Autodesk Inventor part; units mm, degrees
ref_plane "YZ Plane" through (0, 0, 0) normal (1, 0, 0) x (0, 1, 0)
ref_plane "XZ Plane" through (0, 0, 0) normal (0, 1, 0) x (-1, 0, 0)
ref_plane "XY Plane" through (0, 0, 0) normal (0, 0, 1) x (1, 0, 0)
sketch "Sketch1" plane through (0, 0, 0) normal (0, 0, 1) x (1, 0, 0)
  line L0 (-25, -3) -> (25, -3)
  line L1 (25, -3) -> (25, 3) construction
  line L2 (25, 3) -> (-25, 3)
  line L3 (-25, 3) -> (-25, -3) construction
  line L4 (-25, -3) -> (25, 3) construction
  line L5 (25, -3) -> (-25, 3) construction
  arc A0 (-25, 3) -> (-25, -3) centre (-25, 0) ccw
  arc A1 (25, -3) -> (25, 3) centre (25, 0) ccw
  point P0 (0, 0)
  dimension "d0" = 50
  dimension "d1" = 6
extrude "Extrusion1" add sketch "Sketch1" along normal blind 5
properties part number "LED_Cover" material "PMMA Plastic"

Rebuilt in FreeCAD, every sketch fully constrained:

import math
import FreeCAD as App
import Part
import Sketcher
from FreeCAD import Vector

doc = App.newDocument("Part")
body = doc.addObject("PartDesign::Body", "Body")

sketch1 = body.newObject("Sketcher::SketchObject", "Sketch")
sketch1.AttachmentSupport = (doc.getObject("XY_Plane"), [""])
sketch1.MapMode = "FlatFace"
sketch1.addGeometry(Part.ArcOfCircle(Part.Circle(Vector(-25, 0, 0), Vector(0, 0, 1), 3), math.radians(90), math.radians(270)), False)
sketch1.addGeometry(Part.LineSegment(Vector(-25, -3, 0), Vector(25, -3, 0)), False)
sketch1.addGeometry(Part.ArcOfCircle(Part.Circle(Vector(25, 0, 0), Vector(0, 0, 1), 3), math.radians(-90), math.radians(90)), False)
sketch1.addGeometry(Part.LineSegment(Vector(25, 3, 0), Vector(-25, 3, 0)), False)
sketch1.addConstraint(Sketcher.Constraint("Tangent", 0, 2, 1, 1))
sketch1.addConstraint(Sketcher.Constraint("Tangent", 1, 2, 2, 1))
sketch1.addConstraint(Sketcher.Constraint("Tangent", 2, 2, 3, 1))
sketch1.addConstraint(Sketcher.Constraint("Tangent", 3, 2, 0, 1))
sketch1.addConstraint(Sketcher.Constraint("Horizontal", 1))
sketch1.addConstraint(Sketcher.Constraint("Horizontal", 3))
sketch1.addConstraint(Sketcher.Constraint("Symmetric", 0, 3, 2, 3, -1, 1))
sketch1.addConstraint(Sketcher.Constraint("Radius", 0, 3.0))
sketch1.addConstraint(Sketcher.Constraint("DistanceX", 1, 1, 1, 2, 50.0))
pad1 = body.newObject("PartDesign::Pad", "Pad")
pad1.Profile = sketch1
pad1.Length = 5

doc.recompute()
